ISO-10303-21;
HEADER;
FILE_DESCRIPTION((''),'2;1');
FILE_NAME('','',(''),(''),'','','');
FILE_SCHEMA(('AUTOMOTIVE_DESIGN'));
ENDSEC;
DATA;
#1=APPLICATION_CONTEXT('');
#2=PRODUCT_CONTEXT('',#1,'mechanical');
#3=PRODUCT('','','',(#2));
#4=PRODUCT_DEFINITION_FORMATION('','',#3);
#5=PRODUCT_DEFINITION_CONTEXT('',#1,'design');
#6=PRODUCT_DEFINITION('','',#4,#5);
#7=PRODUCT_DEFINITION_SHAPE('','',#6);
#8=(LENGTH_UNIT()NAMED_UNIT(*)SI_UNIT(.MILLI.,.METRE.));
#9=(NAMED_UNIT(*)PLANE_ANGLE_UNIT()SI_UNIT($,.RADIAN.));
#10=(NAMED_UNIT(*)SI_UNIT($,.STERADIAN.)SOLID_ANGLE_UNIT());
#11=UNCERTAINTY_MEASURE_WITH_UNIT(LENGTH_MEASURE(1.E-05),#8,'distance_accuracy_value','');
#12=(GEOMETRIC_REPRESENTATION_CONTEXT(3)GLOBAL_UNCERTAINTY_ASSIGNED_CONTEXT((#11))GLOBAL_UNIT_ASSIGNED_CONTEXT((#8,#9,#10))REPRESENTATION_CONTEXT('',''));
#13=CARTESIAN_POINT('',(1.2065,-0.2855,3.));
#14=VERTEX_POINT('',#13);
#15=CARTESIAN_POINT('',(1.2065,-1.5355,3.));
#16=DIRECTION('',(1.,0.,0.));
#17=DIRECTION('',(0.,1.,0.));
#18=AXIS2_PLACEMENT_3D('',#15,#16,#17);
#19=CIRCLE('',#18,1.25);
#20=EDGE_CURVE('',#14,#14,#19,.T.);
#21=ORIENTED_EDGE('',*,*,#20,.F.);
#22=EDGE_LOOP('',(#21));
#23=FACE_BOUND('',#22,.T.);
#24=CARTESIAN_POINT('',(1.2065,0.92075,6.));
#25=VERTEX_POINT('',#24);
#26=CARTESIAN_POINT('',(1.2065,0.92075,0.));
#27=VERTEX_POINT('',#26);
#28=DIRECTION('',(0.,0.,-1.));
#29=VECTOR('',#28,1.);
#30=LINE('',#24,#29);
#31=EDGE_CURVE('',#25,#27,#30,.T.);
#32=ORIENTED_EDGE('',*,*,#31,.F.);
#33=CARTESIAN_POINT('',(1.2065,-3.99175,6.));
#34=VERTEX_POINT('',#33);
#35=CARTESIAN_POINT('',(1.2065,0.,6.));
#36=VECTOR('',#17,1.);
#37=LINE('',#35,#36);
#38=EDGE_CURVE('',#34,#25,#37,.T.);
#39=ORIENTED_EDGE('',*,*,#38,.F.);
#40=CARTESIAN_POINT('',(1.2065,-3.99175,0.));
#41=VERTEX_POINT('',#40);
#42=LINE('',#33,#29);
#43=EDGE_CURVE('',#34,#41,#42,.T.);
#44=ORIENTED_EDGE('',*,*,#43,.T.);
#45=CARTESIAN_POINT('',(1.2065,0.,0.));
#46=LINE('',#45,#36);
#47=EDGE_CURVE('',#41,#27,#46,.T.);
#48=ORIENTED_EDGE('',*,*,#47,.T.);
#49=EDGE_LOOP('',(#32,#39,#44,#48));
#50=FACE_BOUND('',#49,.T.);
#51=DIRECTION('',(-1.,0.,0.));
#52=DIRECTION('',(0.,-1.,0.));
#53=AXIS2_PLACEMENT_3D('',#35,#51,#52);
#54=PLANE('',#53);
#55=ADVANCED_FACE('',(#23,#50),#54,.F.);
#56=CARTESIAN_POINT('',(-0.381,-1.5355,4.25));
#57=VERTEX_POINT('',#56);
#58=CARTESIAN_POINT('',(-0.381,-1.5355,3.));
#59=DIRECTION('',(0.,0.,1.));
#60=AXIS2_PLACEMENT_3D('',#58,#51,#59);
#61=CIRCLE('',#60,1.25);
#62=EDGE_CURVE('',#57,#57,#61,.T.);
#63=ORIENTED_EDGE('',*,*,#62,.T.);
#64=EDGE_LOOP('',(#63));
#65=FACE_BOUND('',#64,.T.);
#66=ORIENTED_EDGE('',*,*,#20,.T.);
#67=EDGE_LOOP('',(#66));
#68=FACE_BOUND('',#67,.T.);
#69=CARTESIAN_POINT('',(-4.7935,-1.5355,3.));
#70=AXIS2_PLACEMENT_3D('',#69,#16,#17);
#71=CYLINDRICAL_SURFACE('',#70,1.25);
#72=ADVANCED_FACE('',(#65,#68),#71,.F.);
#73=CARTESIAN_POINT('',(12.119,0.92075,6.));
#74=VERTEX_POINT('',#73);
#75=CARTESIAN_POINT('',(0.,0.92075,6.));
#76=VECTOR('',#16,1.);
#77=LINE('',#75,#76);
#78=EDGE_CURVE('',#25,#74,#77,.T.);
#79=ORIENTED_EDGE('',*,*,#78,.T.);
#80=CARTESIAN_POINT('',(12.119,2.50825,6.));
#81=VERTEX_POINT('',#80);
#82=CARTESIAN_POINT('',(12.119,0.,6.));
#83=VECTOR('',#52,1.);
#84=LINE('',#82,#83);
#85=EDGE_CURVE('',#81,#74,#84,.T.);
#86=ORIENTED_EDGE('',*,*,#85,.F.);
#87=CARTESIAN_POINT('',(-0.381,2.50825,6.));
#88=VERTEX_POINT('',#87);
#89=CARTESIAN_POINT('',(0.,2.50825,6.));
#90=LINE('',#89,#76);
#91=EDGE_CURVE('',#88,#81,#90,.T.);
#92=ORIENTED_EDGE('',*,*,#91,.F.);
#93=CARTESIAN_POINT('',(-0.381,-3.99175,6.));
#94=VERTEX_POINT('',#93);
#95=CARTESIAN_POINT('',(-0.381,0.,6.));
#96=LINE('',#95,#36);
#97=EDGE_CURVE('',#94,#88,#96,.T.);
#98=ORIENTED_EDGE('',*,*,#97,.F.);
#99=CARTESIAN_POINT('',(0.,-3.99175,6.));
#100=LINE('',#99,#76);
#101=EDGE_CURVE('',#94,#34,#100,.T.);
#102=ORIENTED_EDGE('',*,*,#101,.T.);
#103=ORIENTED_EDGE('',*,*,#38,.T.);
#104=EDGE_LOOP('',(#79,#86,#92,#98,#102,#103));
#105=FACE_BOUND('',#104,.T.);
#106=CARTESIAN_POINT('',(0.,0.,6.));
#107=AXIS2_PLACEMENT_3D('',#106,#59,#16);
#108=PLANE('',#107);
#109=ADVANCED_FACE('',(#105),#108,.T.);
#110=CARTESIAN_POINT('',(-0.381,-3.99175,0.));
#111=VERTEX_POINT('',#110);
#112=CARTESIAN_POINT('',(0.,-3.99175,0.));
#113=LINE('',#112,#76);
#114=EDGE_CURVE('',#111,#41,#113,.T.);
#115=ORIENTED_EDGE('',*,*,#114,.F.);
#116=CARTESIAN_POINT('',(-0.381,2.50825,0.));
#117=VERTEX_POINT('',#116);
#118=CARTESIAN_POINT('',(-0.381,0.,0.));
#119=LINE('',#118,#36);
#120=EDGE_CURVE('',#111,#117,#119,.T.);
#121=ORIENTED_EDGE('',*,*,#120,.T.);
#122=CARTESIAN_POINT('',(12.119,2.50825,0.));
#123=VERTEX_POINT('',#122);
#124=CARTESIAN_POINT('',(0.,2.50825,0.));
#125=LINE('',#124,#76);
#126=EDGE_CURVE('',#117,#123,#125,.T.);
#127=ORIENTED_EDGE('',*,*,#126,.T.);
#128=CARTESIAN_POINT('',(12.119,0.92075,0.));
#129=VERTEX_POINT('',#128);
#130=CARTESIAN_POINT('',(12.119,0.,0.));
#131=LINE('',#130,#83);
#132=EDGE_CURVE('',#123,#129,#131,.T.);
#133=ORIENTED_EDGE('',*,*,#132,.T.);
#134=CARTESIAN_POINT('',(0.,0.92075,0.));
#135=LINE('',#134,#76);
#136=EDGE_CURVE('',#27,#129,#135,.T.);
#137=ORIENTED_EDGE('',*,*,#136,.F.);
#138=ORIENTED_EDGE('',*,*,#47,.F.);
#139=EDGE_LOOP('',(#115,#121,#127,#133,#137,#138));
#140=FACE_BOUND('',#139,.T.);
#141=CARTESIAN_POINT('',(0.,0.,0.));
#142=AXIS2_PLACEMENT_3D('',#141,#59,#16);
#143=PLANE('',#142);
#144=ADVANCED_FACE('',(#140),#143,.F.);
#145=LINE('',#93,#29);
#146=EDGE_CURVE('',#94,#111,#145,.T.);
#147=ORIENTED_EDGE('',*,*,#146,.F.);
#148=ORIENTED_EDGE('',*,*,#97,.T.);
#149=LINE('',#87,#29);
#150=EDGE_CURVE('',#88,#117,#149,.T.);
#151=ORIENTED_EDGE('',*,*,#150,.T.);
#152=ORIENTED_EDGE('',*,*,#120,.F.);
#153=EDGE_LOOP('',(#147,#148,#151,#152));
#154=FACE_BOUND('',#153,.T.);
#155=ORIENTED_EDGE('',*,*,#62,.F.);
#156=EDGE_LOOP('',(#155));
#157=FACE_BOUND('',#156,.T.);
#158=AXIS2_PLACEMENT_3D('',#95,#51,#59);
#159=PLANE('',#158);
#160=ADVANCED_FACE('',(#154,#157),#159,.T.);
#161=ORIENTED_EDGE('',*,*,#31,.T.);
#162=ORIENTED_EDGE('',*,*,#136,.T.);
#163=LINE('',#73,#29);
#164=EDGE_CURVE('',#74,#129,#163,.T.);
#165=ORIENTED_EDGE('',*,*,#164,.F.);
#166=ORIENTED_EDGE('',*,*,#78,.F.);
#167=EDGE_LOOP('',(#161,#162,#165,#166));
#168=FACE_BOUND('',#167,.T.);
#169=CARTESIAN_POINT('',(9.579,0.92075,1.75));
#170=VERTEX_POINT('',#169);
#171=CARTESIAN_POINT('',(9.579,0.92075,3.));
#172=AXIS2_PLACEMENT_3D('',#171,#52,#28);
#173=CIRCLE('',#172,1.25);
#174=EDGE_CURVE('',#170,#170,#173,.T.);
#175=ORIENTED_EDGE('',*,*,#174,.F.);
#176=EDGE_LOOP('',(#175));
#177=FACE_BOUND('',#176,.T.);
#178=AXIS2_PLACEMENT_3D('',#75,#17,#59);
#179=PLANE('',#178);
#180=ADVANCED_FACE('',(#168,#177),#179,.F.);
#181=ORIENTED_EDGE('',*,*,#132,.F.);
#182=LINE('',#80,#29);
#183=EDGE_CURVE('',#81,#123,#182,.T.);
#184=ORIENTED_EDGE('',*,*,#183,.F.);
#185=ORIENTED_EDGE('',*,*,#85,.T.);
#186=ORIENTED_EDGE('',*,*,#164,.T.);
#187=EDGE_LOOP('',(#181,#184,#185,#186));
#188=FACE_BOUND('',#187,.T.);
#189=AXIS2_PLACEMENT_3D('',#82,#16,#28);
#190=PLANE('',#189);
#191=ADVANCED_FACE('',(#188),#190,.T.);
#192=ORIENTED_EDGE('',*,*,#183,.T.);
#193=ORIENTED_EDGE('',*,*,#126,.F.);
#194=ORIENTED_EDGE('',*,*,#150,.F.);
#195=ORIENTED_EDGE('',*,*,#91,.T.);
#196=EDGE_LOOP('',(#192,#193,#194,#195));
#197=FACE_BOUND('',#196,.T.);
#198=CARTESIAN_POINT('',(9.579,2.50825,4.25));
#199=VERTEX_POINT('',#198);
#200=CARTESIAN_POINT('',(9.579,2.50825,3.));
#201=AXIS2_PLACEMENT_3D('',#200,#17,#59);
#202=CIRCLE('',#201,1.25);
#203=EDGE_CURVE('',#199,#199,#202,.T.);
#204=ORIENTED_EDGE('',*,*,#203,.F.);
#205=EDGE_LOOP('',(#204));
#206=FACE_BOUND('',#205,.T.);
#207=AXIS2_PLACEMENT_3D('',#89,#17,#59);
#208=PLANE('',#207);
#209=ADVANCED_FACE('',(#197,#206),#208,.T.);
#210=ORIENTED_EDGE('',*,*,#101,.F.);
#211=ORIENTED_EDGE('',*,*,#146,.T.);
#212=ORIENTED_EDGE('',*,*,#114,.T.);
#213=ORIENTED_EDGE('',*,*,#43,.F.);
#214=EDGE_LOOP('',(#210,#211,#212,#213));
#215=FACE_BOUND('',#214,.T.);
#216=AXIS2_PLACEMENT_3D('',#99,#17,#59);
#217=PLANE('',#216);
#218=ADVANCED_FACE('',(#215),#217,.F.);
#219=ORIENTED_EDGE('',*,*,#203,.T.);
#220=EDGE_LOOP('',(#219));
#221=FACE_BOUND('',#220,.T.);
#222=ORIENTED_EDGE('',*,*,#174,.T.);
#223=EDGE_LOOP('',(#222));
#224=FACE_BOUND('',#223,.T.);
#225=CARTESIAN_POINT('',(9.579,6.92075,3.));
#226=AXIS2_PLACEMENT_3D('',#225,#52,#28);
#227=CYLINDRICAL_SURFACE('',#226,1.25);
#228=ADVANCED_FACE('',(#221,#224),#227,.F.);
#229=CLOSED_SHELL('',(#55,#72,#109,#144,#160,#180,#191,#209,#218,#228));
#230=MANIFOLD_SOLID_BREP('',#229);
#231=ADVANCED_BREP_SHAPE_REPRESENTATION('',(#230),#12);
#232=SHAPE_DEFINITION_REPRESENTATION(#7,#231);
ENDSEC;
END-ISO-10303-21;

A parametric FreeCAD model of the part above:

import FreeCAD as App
import Part
import Sketcher
from FreeCAD import Vector

doc = App.newDocument("Part")
body = doc.addObject("PartDesign::Body", "Body")

sketch1 = body.newObject("Sketcher::SketchObject", "Sketch")
sketch1.AttachmentSupport = (doc.getObject("XY_Plane"), [""])
sketch1.MapMode = "FlatFace"
sketch1.addGeometry(Part.LineSegment(Vector(-0.4, 2.5, 0), Vector(-0.4, -4, 0)), False)
sketch1.addGeometry(Part.LineSegment(Vector(-0.4, -4, 0), Vector(1.2, -4, 0)), False)
sketch1.addGeometry(Part.LineSegment(Vector(1.2, -4, 0), Vector(1.2, 0.9, 0)), False)
sketch1.addGeometry(Part.LineSegment(Vector(1.2, 0.9, 0), Vector(12.1, 0.9, 0)), False)
sketch1.addGeometry(Part.LineSegment(Vector(12.1, 0.9, 0), Vector(12.1, 2.5, 0)), False)
sketch1.addGeometry(Part.LineSegment(Vector(12.1, 2.5, 0), Vector(-0.4, 2.5, 0)), False)
sketch1.addConstraint(Sketcher.Constraint("Coincident", 0, 2, 1, 1))
sketch1.addConstraint(Sketcher.Constraint("Coincident", 1, 2, 2, 1))
sketch1.addConstraint(Sketcher.Constraint("Coincident", 2, 2, 3, 1))
sketch1.addConstraint(Sketcher.Constraint("Coincident", 3, 2, 4, 1))
sketch1.addConstraint(Sketcher.Constraint("Coincident", 4, 2, 5, 1))
sketch1.addConstraint(Sketcher.Constraint("Coincident", 5, 2, 0, 1))
sketch1.addConstraint(Sketcher.Constraint("Vertical", 0))
sketch1.addConstraint(Sketcher.Constraint("Horizontal", 1))
sketch1.addConstraint(Sketcher.Constraint("Vertical", 2))
sketch1.addConstraint(Sketcher.Constraint("Horizontal", 3))
sketch1.addConstraint(Sketcher.Constraint("Vertical", 4))
sketch1.addConstraint(Sketcher.Constraint("Horizontal", 5))
sketch1.addConstraint(Sketcher.Constraint("Equal", 1, 4))
sketch1.addConstraint(Sketcher.Constraint("DistanceX", 5, 2, 5, 1, 12.5))
sketch1.addConstraint(Sketcher.Constraint("DistanceY", 0, 2, 0, 1, 6.5))
sketch1.addConstraint(Sketcher.Constraint("DistanceX", 1, 1, 1, 2, 1.5875))
sketch1.addConstraint(Sketcher.Constraint("DistanceX", 0, 2, -1, 1, 0.381))
sketch1.addConstraint(Sketcher.Constraint("DistanceY", 0, 2, -1, 1, 3.99175))
pad1 = body.newObject("PartDesign::Pad", "Pad")
pad1.Profile = sketch1
pad1.Length = 6

sketch2 = body.newObject("Sketcher::SketchObject", "Sketch001")
sketch2.AttachmentSupport = (doc.getObject("YZ_Plane"), [""])
sketch2.MapMode = "FlatFace"
sketch2.AttachmentOffset = App.Placement(Vector(0, 0, 1.2065), App.Rotation())
sketch2.addGeometry(Part.Circle(Vector(-1.5, 3, 0), Vector(0, 0, 1), 1.2), False)
sketch2.addConstraint(Sketcher.Constraint("Diameter", 0, 2.5))
sketch2.addConstraint(Sketcher.Constraint("DistanceY", -1, 1, 0, 3, 3.0))
sketch2.addConstraint(Sketcher.Constraint("DistanceX", 0, 3, -1, 1, 1.5355))
pocket1 = body.newObject("PartDesign::Pocket", "Pocket")
pocket1.Profile = sketch2
pocket1.Length = 6

sketch3 = body.newObject("Sketcher::SketchObject", "Sketch002")
sketch3.AttachmentSupport = (doc.getObject("XZ_Plane"), [""])
sketch3.MapMode = "FlatFace"
sketch3.AttachmentOffset = App.Placement(Vector(0, 0, -0.92075), App.Rotation())
sketch3.addGeometry(Part.Circle(Vector(9.6, 3, 0), Vector(0, 0, 1), 1.2), False)
sketch3.addConstraint(Sketcher.Constraint("Diameter", 0, 2.5))
sketch3.addConstraint(Sketcher.Constraint("DistanceY", -1, 1, 0, 3, 3.0))
sketch3.addConstraint(Sketcher.Constraint("DistanceX", -1, 1, 0, 3, 9.579))
pocket2 = body.newObject("PartDesign::Pocket", "Pocket001")
pocket2.Profile = sketch3
pocket2.Length = 6

doc.recompute()
